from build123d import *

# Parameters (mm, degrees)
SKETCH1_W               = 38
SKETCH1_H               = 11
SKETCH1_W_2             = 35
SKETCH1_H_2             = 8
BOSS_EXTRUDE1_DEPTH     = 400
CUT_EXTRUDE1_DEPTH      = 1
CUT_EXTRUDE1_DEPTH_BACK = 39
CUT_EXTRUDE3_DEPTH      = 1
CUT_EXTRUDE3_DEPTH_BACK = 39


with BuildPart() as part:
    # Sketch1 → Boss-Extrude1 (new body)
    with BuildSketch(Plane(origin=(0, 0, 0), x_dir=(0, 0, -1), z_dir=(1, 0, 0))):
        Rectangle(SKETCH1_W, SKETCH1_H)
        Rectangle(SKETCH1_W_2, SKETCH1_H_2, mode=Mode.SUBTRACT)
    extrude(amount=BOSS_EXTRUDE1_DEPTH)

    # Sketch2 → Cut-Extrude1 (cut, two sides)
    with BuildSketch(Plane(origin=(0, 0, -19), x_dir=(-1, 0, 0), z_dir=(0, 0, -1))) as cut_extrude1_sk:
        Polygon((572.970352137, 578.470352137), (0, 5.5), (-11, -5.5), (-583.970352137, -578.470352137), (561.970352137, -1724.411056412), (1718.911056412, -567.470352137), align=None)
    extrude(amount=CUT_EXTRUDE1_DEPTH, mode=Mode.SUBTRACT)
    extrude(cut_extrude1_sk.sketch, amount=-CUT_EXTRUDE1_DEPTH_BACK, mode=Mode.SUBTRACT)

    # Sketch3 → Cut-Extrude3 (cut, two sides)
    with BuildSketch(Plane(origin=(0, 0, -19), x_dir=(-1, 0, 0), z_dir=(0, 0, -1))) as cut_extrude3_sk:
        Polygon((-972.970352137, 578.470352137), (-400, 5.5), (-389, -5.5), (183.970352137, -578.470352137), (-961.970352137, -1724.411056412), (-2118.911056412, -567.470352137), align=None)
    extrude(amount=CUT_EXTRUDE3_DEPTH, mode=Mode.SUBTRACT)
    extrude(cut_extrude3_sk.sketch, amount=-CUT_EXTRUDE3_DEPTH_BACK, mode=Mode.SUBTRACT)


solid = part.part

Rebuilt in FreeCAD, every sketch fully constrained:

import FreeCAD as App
import Part
import Sketcher
from FreeCAD import Vector
Q = App.Units.Quantity

doc = App.newDocument("Part")
body = doc.addObject("PartDesign::Body", "Body")

sketch1 = doc.addObject("Sketcher::SketchObject", "Sketch")
body.addObject(sketch1)
sketch1.AttachmentSupport = (doc.YZ_Plane, [""])
sketch1.MapMode = "FlatFace"
sketch1.addGeometry(Part.LineSegment(Vector(6, 19, 0), Vector(-6, 19, 0)), False)
sketch1.addGeometry(Part.LineSegment(Vector(-6, 19, 0), Vector(-6, -19, 0)), False)
sketch1.addGeometry(Part.LineSegment(Vector(-6, -19, 0), Vector(6, -19, 0)), False)
sketch1.addGeometry(Part.LineSegment(Vector(6, -19, 0), Vector(6, 19, 0)), False)
sketch1.addGeometry(Part.LineSegment(Vector(-4, -18, 0), Vector(-4, 18, 0)), False)
sketch1.addGeometry(Part.LineSegment(Vector(-4, 18, 0), Vector(4, 18, 0)), False)
sketch1.addGeometry(Part.LineSegment(Vector(4, 18, 0), Vector(4, -18, 0)), False)
sketch1.addGeometry(Part.LineSegment(Vector(4, -18, 0), Vector(-4, -18, 0)), False)
sketch1.addConstraint(Sketcher.Constraint("Coincident", 0, 2, 1, 1))
sketch1.addConstraint(Sketcher.Constraint("Coincident", 1, 2, 2, 1))
sketch1.addConstraint(Sketcher.Constraint("Coincident", 2, 2, 3, 1))
sketch1.addConstraint(Sketcher.Constraint("Coincident", 3, 2, 0, 1))
sketch1.addConstraint(Sketcher.Constraint("Coincident", 4, 2, 5, 1))
sketch1.addConstraint(Sketcher.Constraint("Coincident", 5, 2, 6, 1))
sketch1.addConstraint(Sketcher.Constraint("Coincident", 6, 2, 7, 1))
sketch1.addConstraint(Sketcher.Constraint("Coincident", 7, 2, 4, 1))
sketch1.addConstraint(Sketcher.Constraint("Horizontal", 0))
sketch1.addConstraint(Sketcher.Constraint("Vertical", 1))
sketch1.addConstraint(Sketcher.Constraint("Horizontal", 2))
sketch1.addConstraint(Sketcher.Constraint("Vertical", 3))
sketch1.addConstraint(Sketcher.Constraint("Vertical", 4))
sketch1.addConstraint(Sketcher.Constraint("Horizontal", 5))
sketch1.addConstraint(Sketcher.Constraint("Vertical", 6))
sketch1.addConstraint(Sketcher.Constraint("Horizontal", 7))
sketch1.addConstraint(Sketcher.Constraint("Symmetric", 0, 2, 2, 2, -1, 1))
sketch1.addConstraint(Sketcher.Constraint("Symmetric", 4, 2, 6, 2, -1, 1))
sketch1.addConstraint(Sketcher.Constraint("DistanceX", 0, 2, 0, 1, 11.0))
sketch1.addConstraint(Sketcher.Constraint("DistanceX", 5, 1, 5, 2, 8.0))
sketch1.addConstraint(Sketcher.Constraint("DistanceY", 1, 2, 1, 1, 38.0))
sketch1.addConstraint(Sketcher.Constraint("DistanceY", 4, 1, 4, 2, 35.0))
pad1 = doc.addObject("PartDesign::Pad", "Pad")
body.addObject(pad1)
pad1.Profile = sketch1
pad1.Length = 400

sketch2 = doc.addObject("Sketcher::SketchObject", "Sketch001")
body.addObject(sketch2)
sketch2.AttachmentSupport = (doc.XY_Plane, [""])
sketch2.MapMode = "FlatFace"
sketch2.AttachmentOffset = App.Placement(Vector(0, 0, -19), App.Rotation())
sketch2.addGeometry(Part.LineSegment(Vector(-573, 578, 0), Vector(584, -578, 0)), False)
sketch2.addGeometry(Part.LineSegment(Vector(584, -578, 0), Vector(-562, -1724, 0)), False)
sketch2.addGeometry(Part.LineSegment(Vector(-562, -1724, 0), Vector(-1719, -567, 0)), False)
sketch2.addGeometry(Part.LineSegment(Vector(-1719, -567, 0), Vector(-573, 578, 0)), False)
sketch2.addConstraint(Sketcher.Constraint("Coincident", 0, 2, 1, 1))
sketch2.addConstraint(Sketcher.Constraint("Coincident", 1, 2, 2, 1))
sketch2.addConstraint(Sketcher.Constraint("Coincident", 2, 2, 3, 1))
sketch2.addConstraint(Sketcher.Constraint("Coincident", 3, 2, 0, 1))
sketch2.addConstraint(Sketcher.Constraint("Perpendicular", 0, 1))
sketch2.addConstraint(Sketcher.Constraint("Perpendicular", 1, 2))
sketch2.addConstraint(Sketcher.Constraint("Perpendicular", 2, 3))
sketch2.addConstraint(Sketcher.Constraint("Angle", 0, Q("-45 deg")))
sketch2.addConstraint(Sketcher.Constraint("DistanceY", 0, 2, 2, 2, 11.0))
sketch2.addConstraint(Sketcher.Constraint("DistanceX", 2, 2, 0, 2, 2302.881409))
sketch2.addConstraint(Sketcher.Constraint("DistanceX", -1, 1, 0, 2, 583.970352))
sketch2.addConstraint(Sketcher.Constraint("DistanceY", 0, 2, -1, 1, 578.470352))
pocket1 = doc.addObject("PartDesign::Pocket", "Pocket")
body.addObject(pocket1)
pocket1.Profile = sketch2
pocket1.Type = "ThroughAll"
pocket1.Midplane = True

sketch3 = doc.addObject("Sketcher::SketchObject", "Sketch002")
body.addObject(sketch3)
sketch3.AttachmentSupport = (doc.XY_Plane, [""])
sketch3.MapMode = "FlatFace"
sketch3.AttachmentOffset = App.Placement(Vector(0, 0, -19), App.Rotation())
sketch3.addGeometry(Part.LineSegment(Vector(-184, -578, 0), Vector(973, 578, 0)), False)
sketch3.addGeometry(Part.LineSegment(Vector(973, 578, 0), Vector(2119, -567, 0)), False)
sketch3.addGeometry(Part.LineSegment(Vector(2119, -567, 0), Vector(962, -1724, 0)), False)
sketch3.addGeometry(Part.LineSegment(Vector(962, -1724, 0), Vector(-184, -578, 0)), False)
sketch3.addConstraint(Sketcher.Constraint("Coincident", 0, 2, 1, 1))
sketch3.addConstraint(Sketcher.Constraint("Coincident", 1, 2, 2, 1))
sketch3.addConstraint(Sketcher.Constraint("Coincident", 2, 2, 3, 1))
sketch3.addConstraint(Sketcher.Constraint("Coincident", 3, 2, 0, 1))
sketch3.addConstraint(Sketcher.Constraint("Perpendicular", 0, 1))
sketch3.addConstraint(Sketcher.Constraint("Perpendicular", 1, 2))
sketch3.addConstraint(Sketcher.Constraint("Perpendicular", 2, 3))
sketch3.addConstraint(Sketcher.Constraint("Angle", 0, Q("45 deg")))
sketch3.addConstraint(Sketcher.Constraint("DistanceX", 2, 2, 0, 2, 11.0))
sketch3.addConstraint(Sketcher.Constraint("DistanceY", 2, 2, 0, 2, 2302.881409))
sketch3.addConstraint(Sketcher.Constraint("DistanceX", -1, 1, 0, 2, 972.970352))
sketch3.addConstraint(Sketcher.Constraint("DistanceY", -1, 1, 0, 2, 578.470352))
pocket2 = doc.addObject("PartDesign::Pocket", "Pocket001")
body.addObject(pocket2)
pocket2.Profile = sketch3
pocket2.Type = "ThroughAll"
pocket2.Midplane = True

doc.recompute()
